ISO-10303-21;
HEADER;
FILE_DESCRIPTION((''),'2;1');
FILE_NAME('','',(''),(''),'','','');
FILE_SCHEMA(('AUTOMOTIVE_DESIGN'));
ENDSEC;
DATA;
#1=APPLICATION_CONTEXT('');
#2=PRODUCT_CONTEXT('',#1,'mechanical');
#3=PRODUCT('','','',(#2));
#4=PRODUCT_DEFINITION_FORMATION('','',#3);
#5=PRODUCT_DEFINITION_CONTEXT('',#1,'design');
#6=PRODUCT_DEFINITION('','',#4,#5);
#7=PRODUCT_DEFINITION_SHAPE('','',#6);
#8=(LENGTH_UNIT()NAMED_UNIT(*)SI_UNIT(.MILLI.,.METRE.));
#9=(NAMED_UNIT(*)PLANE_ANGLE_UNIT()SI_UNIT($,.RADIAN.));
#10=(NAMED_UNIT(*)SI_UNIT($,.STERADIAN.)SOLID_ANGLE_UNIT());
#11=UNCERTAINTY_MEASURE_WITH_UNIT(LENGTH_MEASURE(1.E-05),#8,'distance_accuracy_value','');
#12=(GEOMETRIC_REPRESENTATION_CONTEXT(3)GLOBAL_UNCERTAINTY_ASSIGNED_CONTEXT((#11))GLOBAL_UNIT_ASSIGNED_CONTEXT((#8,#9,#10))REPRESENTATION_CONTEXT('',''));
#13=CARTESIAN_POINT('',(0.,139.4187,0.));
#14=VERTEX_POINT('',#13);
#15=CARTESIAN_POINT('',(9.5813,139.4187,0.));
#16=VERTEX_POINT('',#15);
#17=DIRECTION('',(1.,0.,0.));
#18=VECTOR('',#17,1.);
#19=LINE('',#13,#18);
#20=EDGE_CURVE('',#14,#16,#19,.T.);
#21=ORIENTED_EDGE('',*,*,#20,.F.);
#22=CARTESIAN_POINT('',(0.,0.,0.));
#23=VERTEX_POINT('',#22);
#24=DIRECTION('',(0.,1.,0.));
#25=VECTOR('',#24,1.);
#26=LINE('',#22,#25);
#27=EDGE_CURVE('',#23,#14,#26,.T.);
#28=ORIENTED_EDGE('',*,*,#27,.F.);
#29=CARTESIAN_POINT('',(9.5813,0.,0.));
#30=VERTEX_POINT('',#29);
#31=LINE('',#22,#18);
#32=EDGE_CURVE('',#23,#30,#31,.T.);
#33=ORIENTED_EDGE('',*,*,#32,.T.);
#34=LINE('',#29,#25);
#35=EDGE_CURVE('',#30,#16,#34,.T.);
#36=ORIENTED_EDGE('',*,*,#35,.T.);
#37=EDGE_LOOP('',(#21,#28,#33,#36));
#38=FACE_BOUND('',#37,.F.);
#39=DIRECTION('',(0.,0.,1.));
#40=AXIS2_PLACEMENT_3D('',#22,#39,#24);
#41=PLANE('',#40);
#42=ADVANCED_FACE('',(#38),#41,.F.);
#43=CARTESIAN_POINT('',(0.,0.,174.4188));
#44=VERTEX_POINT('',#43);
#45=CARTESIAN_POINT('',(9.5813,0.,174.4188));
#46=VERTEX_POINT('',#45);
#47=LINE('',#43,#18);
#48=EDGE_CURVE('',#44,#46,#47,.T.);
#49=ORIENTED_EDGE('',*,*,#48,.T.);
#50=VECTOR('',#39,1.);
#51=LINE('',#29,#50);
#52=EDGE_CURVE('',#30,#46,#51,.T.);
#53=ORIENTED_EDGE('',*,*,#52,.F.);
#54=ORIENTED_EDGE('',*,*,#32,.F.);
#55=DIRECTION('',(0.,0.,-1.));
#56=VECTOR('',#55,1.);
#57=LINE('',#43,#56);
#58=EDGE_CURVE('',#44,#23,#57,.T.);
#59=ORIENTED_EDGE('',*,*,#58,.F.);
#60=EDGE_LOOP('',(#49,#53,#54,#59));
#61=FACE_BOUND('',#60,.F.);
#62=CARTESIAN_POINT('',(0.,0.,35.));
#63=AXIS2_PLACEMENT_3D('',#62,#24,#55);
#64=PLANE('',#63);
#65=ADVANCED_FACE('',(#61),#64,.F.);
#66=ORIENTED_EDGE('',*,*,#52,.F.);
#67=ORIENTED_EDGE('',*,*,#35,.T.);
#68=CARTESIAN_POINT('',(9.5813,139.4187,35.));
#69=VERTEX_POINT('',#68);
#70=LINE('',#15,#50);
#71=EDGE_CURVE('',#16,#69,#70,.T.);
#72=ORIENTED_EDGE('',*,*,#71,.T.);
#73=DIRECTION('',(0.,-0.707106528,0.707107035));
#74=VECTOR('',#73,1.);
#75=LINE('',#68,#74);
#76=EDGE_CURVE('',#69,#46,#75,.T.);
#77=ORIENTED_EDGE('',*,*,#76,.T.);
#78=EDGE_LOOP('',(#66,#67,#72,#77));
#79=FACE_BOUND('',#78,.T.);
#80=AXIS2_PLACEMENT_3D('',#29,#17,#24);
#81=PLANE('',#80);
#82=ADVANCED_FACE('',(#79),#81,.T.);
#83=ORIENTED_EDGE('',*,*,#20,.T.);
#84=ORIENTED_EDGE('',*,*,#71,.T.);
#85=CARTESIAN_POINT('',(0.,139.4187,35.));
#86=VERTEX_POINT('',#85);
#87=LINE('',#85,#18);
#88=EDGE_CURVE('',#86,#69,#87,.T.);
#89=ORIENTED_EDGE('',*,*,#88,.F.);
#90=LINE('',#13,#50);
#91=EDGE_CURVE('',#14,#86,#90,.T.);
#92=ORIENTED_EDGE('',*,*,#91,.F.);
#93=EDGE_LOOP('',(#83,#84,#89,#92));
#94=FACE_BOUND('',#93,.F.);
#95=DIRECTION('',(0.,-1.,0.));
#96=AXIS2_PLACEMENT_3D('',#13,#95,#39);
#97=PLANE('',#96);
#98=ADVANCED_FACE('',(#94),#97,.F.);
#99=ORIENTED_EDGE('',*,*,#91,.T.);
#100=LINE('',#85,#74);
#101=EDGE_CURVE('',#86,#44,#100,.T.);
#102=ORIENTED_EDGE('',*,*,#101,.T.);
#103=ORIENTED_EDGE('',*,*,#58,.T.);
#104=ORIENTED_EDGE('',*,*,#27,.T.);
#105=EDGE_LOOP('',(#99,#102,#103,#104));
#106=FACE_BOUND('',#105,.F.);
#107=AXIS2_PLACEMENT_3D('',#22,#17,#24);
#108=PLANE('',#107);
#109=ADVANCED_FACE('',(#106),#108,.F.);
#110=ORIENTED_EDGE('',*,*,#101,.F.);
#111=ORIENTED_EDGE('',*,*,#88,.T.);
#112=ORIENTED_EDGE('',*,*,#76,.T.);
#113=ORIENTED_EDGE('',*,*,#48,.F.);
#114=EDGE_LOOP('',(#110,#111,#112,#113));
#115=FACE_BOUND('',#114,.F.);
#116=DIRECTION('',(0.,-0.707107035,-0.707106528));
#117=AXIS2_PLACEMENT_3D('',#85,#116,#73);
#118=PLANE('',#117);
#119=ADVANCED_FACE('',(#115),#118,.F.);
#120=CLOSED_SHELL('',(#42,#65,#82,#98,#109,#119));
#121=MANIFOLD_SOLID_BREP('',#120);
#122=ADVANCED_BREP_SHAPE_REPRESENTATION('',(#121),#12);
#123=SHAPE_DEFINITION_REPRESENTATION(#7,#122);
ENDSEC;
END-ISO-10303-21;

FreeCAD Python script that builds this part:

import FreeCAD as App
import Part
import Sketcher

V = App.Vector
Q = App.Units.Quantity


def add_polygon(sketch, points):
    """Adds a closed chain of lines whose ends are joined by coincident constraints."""
    first, n = sketch.GeometryCount, len(points)
    for a, b in zip(points, points[1:] + points[:1]):
        sketch.addGeometry(Part.LineSegment(App.Vector(*a, 0), App.Vector(*b, 0)), False)
    for i in range(n):
        sketch.addConstraint(Sketcher.Constraint("Coincident", first + i, 2, first + (i + 1) % n, 1))

doc = App.newDocument("Part")
body = doc.addObject("PartDesign::Body", "Body")

# Sketch on YZ plane
sketch1 = body.newObject("Sketcher::SketchObject", "Sketch")
sketch1.AttachmentSupport = (doc.getObject("YZ_Plane"), [""])
sketch1.MapMode = "FlatFace"
add_polygon(sketch1, [(0, 0), (139, 0), (139, 35), (0, 174)])  # lines 0-3
sketch1.addConstraint(Sketcher.Constraint("Horizontal", 0))
sketch1.addConstraint(Sketcher.Constraint("Vertical", 1))
sketch1.addConstraint(Sketcher.Constraint("Vertical", 3))
sketch1.addConstraint(Sketcher.Constraint("Coincident", 3, 2, -1, 1))
sketch1.addConstraint(Sketcher.Constraint("DistanceY", 1, 1, 1, 2, 35.0))
sketch1.addConstraint(Sketcher.Constraint("Angle", 2, Q("135 deg")))
sketch1.addConstraint(Sketcher.Constraint("DistanceX", 0, 1, 0, 2, 139.4187))
pad1 = body.newObject("PartDesign::Pad", "Pad")
pad1.Profile = sketch1
pad1.Length = 9.5813

doc.recompute()
